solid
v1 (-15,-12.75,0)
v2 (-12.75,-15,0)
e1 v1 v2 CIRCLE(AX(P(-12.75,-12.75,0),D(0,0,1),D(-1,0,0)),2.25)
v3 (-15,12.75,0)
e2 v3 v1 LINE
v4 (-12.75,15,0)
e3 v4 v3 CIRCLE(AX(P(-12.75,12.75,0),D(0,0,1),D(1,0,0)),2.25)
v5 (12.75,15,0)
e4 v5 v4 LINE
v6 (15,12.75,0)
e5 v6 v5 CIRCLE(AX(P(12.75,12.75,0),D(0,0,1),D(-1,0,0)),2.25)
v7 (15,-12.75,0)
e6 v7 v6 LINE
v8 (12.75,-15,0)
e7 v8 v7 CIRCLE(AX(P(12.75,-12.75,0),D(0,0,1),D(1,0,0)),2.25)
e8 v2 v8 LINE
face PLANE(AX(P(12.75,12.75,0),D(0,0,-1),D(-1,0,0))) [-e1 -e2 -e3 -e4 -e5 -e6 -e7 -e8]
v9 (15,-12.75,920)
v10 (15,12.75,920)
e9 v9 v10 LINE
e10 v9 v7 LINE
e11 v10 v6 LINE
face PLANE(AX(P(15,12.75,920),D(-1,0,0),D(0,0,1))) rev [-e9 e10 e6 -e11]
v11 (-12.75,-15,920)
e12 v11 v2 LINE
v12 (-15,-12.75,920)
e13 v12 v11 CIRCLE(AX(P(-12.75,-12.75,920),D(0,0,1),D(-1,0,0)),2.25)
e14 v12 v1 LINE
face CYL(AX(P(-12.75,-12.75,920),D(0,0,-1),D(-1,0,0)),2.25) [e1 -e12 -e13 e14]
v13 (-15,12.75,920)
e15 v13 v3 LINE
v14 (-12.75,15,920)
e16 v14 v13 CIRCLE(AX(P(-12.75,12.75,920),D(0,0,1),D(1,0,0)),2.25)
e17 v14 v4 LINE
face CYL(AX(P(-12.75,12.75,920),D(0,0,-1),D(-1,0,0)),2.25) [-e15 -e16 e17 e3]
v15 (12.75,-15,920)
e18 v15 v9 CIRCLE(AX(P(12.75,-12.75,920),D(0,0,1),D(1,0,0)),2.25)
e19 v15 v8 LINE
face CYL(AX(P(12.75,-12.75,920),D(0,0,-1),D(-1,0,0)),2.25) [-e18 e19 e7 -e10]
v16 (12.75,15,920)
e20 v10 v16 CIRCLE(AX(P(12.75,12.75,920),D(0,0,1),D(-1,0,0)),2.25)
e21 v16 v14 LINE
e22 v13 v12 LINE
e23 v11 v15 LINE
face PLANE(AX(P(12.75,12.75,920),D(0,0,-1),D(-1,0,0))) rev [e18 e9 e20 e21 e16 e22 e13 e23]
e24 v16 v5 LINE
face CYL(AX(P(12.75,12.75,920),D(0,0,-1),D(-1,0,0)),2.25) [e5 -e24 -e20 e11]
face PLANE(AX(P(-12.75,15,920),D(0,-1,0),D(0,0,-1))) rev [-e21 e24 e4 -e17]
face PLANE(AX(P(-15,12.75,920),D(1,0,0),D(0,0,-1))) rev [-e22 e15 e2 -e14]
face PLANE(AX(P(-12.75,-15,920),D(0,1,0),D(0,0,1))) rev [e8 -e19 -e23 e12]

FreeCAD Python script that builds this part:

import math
import FreeCAD as App
import Part
import Sketcher

V = App.Vector

doc = App.newDocument("Part")
body = doc.addObject("PartDesign::Body", "Body")

# Sketch on XY plane
sketch1 = body.newObject("Sketcher::SketchObject", "Sketch")
sketch1.AttachmentSupport = (doc.getObject("XY_Plane"), [""])
sketch1.MapMode = "FlatFace"
sketch1.addGeometry([
    Part.LineSegment(V(-15, 12.75, 0), V(-15, -12.75, 0)),  # 0
    Part.ArcOfCircle(Part.Circle(V(-12.75, -12.75, 0), V(0, 0, 1), 2.25), math.radians(180), math.radians(270)),  # 1
    Part.LineSegment(V(-12.75, -15, 0), V(12.75, -15, 0)),  # 2
    Part.ArcOfCircle(Part.Circle(V(12.75, -12.75, 0), V(0, 0, 1), 2.25), math.radians(-90), math.radians(0)),  # 3
    Part.LineSegment(V(15, -12.75, 0), V(15, 12.75, 0)),  # 4
    Part.ArcOfCircle(Part.Circle(V(12.75, 12.75, 0), V(0, 0, 1), 2.25), math.radians(0), math.radians(90)),  # 5
    Part.LineSegment(V(12.75, 15, 0), V(-12.75, 15, 0)),  # 6
    Part.ArcOfCircle(Part.Circle(V(-12.75, 12.75, 0), V(0, 0, 1), 2.25), math.radians(90), math.radians(180)),  # 7
], False)
sketch1.addConstraint([
    Sketcher.Constraint("Tangent", 0, 2, 1, 1),
    Sketcher.Constraint("Tangent", 1, 2, 2, 1),
    Sketcher.Constraint("Tangent", 2, 2, 3, 1),
    Sketcher.Constraint("Tangent", 3, 2, 4, 1),
    Sketcher.Constraint("Tangent", 4, 2, 5, 1),
    Sketcher.Constraint("Tangent", 5, 2, 6, 1),
    Sketcher.Constraint("Tangent", 6, 2, 7, 1),
    Sketcher.Constraint("Tangent", 7, 2, 0, 1),
    Sketcher.Constraint("Vertical", 0),
    Sketcher.Constraint("Horizontal", 2),
    Sketcher.Constraint("Vertical", 4),
    Sketcher.Constraint("Horizontal", 6),
    Sketcher.Constraint("Equal", 1, 3),
    Sketcher.Constraint("Equal", 3, 5),
    Sketcher.Constraint("Equal", 5, 7),
    Sketcher.Constraint("Symmetric", 1, 3, 5, 3, -1, 1),
    Sketcher.Constraint("Equal", 6, 0),
    Sketcher.Constraint("Radius", 1, 2.25),
    Sketcher.Constraint("DistanceX", 2, 1, 2, 2, 25.5),
])
pad1 = body.newObject("PartDesign::Pad", "Pad")
pad1.Profile = sketch1
pad1.Length = 920

doc.recompute()
